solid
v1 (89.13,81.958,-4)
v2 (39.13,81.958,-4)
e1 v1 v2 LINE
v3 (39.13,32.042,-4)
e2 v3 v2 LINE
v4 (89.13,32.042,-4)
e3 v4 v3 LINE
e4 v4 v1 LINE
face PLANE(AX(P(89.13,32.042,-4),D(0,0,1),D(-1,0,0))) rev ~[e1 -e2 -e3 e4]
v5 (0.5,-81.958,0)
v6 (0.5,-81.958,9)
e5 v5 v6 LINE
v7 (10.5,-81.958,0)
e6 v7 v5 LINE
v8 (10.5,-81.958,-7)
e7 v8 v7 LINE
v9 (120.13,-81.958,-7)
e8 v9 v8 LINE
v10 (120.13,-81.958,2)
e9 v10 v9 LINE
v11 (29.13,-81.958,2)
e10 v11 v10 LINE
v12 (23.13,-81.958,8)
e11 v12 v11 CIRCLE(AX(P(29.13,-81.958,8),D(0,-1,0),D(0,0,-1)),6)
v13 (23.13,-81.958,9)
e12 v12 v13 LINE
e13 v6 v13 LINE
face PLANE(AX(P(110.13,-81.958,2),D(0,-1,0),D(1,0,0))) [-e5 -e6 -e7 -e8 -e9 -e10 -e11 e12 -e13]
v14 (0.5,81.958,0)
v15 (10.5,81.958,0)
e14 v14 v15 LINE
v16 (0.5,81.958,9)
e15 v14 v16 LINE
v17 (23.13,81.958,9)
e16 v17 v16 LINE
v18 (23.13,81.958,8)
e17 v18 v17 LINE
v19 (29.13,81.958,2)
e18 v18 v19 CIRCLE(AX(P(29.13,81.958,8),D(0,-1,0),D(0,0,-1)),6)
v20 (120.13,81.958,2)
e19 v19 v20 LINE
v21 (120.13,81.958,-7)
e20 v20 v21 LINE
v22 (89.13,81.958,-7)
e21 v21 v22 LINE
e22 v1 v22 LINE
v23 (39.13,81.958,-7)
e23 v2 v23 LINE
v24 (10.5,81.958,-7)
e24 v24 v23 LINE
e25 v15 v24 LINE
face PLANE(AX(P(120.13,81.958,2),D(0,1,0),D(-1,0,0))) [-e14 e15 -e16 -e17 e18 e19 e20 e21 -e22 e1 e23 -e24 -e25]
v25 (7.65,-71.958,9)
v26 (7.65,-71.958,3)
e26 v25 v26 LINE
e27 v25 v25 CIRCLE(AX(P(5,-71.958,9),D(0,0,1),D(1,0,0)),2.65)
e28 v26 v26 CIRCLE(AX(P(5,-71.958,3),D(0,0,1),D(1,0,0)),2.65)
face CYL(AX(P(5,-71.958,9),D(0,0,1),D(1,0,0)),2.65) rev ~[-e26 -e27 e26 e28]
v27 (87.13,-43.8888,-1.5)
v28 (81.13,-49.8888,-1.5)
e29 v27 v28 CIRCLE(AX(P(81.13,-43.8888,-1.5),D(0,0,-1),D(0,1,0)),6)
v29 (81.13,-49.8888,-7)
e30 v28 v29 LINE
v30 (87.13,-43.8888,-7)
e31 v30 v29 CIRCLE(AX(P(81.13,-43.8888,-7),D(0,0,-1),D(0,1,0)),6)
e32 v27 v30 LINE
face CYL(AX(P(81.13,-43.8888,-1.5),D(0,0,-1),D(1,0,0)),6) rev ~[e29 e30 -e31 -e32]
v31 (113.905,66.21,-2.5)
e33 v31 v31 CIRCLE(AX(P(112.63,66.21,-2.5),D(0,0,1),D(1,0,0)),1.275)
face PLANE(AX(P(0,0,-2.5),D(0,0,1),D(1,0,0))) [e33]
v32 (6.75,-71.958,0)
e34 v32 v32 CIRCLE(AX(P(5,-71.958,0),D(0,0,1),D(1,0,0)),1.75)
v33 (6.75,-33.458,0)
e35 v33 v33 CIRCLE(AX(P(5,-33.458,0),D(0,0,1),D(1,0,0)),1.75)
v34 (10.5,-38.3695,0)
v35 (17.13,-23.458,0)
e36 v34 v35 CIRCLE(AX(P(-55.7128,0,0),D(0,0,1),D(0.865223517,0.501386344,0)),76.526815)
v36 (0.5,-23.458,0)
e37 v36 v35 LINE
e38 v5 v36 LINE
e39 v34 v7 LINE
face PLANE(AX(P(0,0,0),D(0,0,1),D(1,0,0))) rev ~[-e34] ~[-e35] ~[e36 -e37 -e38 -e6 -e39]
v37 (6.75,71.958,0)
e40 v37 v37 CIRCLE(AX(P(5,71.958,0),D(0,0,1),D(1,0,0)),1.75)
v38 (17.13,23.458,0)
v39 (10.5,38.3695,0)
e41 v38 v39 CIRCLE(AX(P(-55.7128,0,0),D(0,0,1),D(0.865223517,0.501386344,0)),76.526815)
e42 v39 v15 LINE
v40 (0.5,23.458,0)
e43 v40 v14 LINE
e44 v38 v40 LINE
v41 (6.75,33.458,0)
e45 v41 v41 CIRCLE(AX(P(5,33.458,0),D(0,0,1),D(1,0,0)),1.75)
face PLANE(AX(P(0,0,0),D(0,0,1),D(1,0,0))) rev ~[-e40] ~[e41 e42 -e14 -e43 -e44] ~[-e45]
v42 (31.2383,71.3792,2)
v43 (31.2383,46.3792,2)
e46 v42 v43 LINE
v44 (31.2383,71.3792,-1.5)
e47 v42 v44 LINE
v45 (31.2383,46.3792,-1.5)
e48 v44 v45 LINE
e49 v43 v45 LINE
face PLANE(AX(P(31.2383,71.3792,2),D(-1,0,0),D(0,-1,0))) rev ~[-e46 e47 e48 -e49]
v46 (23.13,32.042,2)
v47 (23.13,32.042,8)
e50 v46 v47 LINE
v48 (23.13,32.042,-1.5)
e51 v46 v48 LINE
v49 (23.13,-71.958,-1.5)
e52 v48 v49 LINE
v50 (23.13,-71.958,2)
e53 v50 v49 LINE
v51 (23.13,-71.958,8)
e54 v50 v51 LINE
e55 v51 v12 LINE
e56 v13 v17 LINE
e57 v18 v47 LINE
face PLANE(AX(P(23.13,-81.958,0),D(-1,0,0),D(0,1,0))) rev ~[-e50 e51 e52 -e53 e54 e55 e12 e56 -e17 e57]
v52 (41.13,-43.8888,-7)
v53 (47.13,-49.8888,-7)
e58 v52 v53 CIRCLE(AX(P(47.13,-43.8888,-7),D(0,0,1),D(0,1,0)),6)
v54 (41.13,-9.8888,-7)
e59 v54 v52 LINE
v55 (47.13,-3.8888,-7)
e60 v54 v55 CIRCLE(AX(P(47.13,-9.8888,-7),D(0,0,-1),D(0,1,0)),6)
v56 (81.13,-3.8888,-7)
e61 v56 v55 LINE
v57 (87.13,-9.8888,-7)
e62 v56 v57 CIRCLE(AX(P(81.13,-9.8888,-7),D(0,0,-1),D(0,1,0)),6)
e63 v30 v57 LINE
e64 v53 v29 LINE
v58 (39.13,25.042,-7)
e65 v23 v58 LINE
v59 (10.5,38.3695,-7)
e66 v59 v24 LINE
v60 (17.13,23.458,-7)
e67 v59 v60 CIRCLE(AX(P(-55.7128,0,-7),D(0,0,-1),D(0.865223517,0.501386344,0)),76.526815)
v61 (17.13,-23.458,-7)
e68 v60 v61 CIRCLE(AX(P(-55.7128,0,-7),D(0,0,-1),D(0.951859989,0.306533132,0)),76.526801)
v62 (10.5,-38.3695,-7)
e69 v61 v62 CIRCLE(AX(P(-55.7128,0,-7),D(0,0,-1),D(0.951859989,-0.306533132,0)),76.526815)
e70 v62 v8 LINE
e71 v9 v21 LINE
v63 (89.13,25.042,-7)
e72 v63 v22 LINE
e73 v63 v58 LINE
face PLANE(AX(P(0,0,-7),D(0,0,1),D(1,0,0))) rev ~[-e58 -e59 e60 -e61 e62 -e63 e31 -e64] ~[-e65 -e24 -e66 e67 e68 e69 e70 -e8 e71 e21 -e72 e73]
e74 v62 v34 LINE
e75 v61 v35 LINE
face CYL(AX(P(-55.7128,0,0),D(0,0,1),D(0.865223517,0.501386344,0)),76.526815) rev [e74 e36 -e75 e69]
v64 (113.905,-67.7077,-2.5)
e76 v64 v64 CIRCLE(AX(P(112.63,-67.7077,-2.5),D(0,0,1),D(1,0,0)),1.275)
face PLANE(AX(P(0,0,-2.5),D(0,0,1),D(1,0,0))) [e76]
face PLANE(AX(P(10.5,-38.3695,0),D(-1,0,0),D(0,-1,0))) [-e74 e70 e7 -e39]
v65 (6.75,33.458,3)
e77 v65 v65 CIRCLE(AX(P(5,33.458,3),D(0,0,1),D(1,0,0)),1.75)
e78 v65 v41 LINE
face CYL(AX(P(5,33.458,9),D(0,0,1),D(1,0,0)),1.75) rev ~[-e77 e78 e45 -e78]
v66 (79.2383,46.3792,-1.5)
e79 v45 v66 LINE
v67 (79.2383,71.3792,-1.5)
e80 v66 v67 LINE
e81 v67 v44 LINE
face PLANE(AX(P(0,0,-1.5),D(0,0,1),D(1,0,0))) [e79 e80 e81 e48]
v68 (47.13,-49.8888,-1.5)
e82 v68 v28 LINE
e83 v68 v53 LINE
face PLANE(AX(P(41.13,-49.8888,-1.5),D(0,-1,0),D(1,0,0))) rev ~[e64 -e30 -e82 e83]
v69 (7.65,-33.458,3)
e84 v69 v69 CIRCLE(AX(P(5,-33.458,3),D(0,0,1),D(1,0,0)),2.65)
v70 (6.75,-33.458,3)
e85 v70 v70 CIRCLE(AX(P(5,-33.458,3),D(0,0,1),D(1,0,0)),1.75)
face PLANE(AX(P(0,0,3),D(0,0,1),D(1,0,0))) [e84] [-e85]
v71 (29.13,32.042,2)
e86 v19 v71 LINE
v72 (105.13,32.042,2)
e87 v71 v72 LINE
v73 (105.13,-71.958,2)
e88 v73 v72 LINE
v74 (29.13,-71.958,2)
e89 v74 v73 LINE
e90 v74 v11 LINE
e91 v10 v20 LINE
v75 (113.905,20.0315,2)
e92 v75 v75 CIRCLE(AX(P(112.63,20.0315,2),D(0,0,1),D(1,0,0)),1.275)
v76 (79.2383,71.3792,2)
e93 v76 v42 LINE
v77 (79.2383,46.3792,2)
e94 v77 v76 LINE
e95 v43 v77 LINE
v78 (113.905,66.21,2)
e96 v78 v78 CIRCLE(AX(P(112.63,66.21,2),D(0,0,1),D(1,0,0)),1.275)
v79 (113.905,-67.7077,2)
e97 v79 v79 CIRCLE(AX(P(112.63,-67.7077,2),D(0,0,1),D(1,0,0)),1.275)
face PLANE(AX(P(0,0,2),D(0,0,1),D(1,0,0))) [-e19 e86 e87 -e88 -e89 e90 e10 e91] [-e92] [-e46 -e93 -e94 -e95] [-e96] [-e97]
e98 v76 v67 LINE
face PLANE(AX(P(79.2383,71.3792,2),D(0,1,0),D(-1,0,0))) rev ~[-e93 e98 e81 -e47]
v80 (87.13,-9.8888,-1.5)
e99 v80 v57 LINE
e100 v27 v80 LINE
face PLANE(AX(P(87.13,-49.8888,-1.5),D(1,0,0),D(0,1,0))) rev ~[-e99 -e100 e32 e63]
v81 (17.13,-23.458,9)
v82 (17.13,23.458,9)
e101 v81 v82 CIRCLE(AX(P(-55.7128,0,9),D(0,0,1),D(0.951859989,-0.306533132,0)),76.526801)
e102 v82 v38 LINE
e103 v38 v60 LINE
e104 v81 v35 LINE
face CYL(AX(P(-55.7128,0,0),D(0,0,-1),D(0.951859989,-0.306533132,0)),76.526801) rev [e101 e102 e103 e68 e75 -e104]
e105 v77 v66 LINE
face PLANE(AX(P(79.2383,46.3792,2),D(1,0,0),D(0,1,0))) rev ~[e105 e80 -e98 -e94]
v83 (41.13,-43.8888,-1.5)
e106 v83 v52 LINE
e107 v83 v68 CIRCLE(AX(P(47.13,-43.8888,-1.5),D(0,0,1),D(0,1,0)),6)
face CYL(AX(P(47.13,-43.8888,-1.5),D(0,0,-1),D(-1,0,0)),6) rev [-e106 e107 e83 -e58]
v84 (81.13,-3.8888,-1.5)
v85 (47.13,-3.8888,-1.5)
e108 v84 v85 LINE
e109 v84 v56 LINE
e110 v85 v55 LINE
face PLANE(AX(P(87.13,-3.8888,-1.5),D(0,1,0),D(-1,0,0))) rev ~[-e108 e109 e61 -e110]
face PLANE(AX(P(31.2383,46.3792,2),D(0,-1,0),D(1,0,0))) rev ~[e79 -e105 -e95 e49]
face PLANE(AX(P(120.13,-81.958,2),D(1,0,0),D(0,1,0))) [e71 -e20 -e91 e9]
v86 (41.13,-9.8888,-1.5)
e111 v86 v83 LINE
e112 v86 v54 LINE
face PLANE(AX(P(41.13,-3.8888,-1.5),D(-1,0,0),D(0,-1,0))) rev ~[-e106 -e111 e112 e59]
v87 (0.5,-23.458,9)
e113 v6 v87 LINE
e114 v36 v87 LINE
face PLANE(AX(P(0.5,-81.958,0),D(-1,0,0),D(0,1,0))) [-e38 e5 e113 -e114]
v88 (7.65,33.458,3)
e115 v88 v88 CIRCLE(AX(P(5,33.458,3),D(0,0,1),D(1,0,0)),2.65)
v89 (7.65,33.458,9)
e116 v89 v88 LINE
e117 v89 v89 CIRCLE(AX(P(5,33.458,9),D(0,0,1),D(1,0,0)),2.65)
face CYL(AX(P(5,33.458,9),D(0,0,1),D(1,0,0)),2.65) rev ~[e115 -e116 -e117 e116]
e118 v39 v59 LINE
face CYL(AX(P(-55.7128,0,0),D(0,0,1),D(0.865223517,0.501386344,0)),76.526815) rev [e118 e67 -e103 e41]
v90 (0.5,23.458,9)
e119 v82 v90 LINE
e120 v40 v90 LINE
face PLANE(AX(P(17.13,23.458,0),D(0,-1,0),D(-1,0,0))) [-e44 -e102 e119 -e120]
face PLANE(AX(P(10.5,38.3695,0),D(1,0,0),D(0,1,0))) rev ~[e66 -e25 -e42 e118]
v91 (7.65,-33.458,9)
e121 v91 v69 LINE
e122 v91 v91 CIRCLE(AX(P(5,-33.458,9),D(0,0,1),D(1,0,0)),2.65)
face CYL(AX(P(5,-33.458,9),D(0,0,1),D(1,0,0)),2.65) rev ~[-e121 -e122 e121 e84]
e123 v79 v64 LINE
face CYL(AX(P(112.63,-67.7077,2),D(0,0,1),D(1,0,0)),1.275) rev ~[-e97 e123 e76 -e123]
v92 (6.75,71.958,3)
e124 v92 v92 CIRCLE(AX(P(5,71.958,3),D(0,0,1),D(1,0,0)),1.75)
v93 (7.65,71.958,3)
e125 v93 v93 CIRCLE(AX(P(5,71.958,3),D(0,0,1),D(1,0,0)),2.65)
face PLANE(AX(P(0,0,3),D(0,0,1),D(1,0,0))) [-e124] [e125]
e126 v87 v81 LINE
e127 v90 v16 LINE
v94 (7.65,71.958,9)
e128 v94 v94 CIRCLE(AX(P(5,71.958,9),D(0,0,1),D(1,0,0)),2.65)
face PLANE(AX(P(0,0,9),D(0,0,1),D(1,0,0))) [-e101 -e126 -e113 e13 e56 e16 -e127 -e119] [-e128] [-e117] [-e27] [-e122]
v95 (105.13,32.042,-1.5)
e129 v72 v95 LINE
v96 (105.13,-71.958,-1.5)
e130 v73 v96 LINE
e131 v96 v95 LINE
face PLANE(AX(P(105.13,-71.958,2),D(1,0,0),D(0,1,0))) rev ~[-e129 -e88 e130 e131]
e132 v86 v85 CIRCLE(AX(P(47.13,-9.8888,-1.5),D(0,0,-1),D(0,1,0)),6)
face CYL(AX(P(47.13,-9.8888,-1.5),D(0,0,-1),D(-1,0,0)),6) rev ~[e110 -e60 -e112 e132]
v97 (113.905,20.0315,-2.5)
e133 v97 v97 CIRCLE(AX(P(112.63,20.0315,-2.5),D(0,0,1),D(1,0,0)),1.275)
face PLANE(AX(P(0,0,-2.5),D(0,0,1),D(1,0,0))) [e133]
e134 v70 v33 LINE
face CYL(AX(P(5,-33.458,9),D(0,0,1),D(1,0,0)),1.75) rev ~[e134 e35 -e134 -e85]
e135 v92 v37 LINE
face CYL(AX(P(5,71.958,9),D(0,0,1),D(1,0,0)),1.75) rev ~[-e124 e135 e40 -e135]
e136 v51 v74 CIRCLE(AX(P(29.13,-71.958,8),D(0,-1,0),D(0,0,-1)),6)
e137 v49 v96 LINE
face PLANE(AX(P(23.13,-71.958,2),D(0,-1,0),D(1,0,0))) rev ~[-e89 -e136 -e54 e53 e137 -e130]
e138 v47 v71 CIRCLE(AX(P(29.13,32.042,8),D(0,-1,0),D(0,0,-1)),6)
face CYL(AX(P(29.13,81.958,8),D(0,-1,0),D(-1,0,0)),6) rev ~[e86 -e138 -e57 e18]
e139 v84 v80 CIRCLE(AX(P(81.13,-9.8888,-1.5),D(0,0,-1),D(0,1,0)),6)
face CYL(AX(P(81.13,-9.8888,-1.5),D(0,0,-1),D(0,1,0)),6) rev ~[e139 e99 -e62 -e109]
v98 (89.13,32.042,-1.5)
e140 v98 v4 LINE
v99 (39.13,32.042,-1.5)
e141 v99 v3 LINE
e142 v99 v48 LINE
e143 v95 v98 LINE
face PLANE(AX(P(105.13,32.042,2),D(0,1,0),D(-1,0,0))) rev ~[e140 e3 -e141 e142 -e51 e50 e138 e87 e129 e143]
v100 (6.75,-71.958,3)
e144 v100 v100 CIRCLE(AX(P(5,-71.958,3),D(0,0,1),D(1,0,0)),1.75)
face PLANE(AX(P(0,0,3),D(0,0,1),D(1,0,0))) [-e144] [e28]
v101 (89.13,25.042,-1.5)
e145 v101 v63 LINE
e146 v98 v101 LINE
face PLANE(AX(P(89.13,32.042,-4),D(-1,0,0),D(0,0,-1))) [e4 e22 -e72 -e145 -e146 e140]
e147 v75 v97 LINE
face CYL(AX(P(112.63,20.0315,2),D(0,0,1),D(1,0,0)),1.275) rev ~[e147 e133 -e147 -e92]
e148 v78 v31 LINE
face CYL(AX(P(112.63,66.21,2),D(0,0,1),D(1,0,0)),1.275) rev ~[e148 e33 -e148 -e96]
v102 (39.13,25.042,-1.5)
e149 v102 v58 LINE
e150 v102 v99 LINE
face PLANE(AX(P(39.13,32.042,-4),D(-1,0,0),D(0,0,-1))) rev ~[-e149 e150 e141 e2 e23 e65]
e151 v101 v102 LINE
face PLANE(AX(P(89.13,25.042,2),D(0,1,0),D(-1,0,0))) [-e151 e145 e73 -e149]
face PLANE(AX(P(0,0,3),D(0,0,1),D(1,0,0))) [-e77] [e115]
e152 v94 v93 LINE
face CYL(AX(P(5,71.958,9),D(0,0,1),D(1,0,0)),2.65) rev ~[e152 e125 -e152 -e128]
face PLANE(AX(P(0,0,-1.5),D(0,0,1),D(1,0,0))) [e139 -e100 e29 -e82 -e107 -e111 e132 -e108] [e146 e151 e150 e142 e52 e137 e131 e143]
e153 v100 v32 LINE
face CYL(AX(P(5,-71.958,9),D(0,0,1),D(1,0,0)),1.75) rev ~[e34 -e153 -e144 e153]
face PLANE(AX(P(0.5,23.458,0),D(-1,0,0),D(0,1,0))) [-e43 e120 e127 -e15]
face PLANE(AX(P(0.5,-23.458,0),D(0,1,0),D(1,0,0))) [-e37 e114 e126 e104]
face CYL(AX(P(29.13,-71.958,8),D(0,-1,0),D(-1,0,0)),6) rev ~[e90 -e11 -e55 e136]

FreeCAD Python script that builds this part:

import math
import FreeCAD as App
import Part
import Sketcher

V = App.Vector
Q = App.Units.Quantity


def edges_at(feature, points):
    """Names of the edges that pass closest to the given points."""
    edges = feature.Shape.Edges
    near = lambda p: min(range(len(edges)), key=lambda i: edges[i].distToShape(Part.Vertex(*p))[0])
    return sorted({f"Edge{near(p) + 1}" for p in points})

doc = App.newDocument("Part")
body = doc.addObject("PartDesign::Body", "Body")

# Sketch on XY plane
sketch1 = body.newObject("Sketcher::SketchObject", "Sketch")
sketch1.AttachmentSupport = (doc.getObject("XY_Plane"), [""])
sketch1.MapMode = "FlatFace"
sketch1.addGeometry(Part.LineSegment(V(17.13, -23.458, 0), V(0.5, -23.458, 0)), False)
sketch1.addGeometry(Part.LineSegment(V(0.5, -23.458, 0), V(0.5, -81.958, 0)), False)
sketch1.addGeometry(Part.LineSegment(V(0.5, -81.958, 0), V(23.13, -81.958, 0)), False)
sketch1.addGeometry(Part.LineSegment(V(23.13, -81.958, 0), V(23.13, 81.958, 0)), False)
sketch1.addGeometry(Part.LineSegment(V(23.13, 81.958, 0), V(0.5, 81.958, 0)), False)
sketch1.addGeometry(Part.LineSegment(V(0.5, 81.958, 0), V(0.5, 23.458, 0)), False)
sketch1.addGeometry(Part.LineSegment(V(0.5, 23.458, 0), V(17.13, 23.458, 0)), False)
sketch1.addGeometry(Part.ArcOfCircle(Part.Circle(V(-55.7128, 0, 0), V(0, 0, 1), 76.526801), math.radians(-17.850425), math.radians(17.850425)), False)
sketch1.addConstraint(Sketcher.Constraint("Coincident", 0, 2, 1, 1))
sketch1.addConstraint(Sketcher.Constraint("Coincident", 1, 2, 2, 1))
sketch1.addConstraint(Sketcher.Constraint("Coincident", 2, 2, 3, 1))
sketch1.addConstraint(Sketcher.Constraint("Coincident", 3, 2, 4, 1))
sketch1.addConstraint(Sketcher.Constraint("Coincident", 4, 2, 5, 1))
sketch1.addConstraint(Sketcher.Constraint("Coincident", 5, 2, 6, 1))
sketch1.addConstraint(Sketcher.Constraint("Coincident", 6, 2, 7, 2))
sketch1.addConstraint(Sketcher.Constraint("Coincident", 7, 1, 0, 1))
sketch1.addConstraint(Sketcher.Constraint("Horizontal", 0))
sketch1.addConstraint(Sketcher.Constraint("Vertical", 1))
sketch1.addConstraint(Sketcher.Constraint("Horizontal", 2))
sketch1.addConstraint(Sketcher.Constraint("Vertical", 3))
sketch1.addConstraint(Sketcher.Constraint("Horizontal", 4))
sketch1.addConstraint(Sketcher.Constraint("Vertical", 5))
sketch1.addConstraint(Sketcher.Constraint("Horizontal", 6))
sketch1.addConstraint(Sketcher.Constraint("Symmetric", 1, 2, 4, 2, -1))
sketch1.addConstraint(Sketcher.Constraint("Symmetric", 6, 2, 7, 1, -1))
sketch1.addConstraint(Sketcher.Constraint("DistanceX", 6, 2, 3, 2, Q("6 mm")))
sketch1.addConstraint(Sketcher.Constraint("DistanceX", 0, 2, 0, 1, Q("16.63 mm")))
sketch1.addConstraint(Sketcher.Constraint("DistanceX", -1, 1, 0, 2, Q("0.5 mm")))
sketch1.addConstraint(Sketcher.Constraint("DistanceY", 1, 2, 1, 1, Q("58.5 mm")))
sketch1.addConstraint(Sketcher.Constraint("Radius", 7, Q("76.5268 mm")))
sketch1.addConstraint(Sketcher.Constraint("DistanceY", 3, 1, 3, 2, Q("163.916 mm")))
pad1 = body.newObject("PartDesign::Pad", "Pad")
pad1.Profile = sketch1
pad1.Length = 9

# Sketch on XY plane
sketch2 = body.newObject("Sketcher::SketchObject", "Sketch001")
sketch2.AttachmentSupport = (doc.getObject("XY_Plane"), [""])
sketch2.MapMode = "FlatFace"
sketch2.addGeometry(Part.LineSegment(V(10.5, 38.3695, 0), V(10.5, 81.958, 0)), False)
sketch2.addGeometry(Part.LineSegment(V(10.5, 81.958, 0), V(110.13, 81.958, 0)), False)
sketch2.addGeometry(Part.LineSegment(V(110.13, 81.958, 0), V(110.13, -81.958, 0)), False)
sketch2.addGeometry(Part.LineSegment(V(110.13, -81.958, 0), V(10.5, -81.958, 0)), False)
sketch2.addGeometry(Part.LineSegment(V(10.5, -81.958, 0), V(10.5, -38.3695, 0)), False)
sketch2.addGeometry(Part.ArcOfCircle(Part.Circle(V(-55.7128, 0, 0), V(0, 0, 1), 76.526815), math.radians(-30.091762), math.radians(30.091762)), False)
sketch2.addConstraint(Sketcher.Constraint("Coincident", 0, 2, 1, 1))
sketch2.addConstraint(Sketcher.Constraint("Coincident", 1, 2, 2, 1))
sketch2.addConstraint(Sketcher.Constraint("Coincident", 2, 2, 3, 1))
sketch2.addConstraint(Sketcher.Constraint("Coincident", 3, 2, 4, 1))
sketch2.addConstraint(Sketcher.Constraint("Coincident", 4, 2, 5, 1))
sketch2.addConstraint(Sketcher.Constraint("Coincident", 5, 2, 0, 1))
sketch2.addConstraint(Sketcher.Constraint("Vertical", 0))
sketch2.addConstraint(Sketcher.Constraint("Horizontal", 1))
sketch2.addConstraint(Sketcher.Constraint("Vertical", 2))
sketch2.addConstraint(Sketcher.Constraint("Horizontal", 3))
sketch2.addConstraint(Sketcher.Constraint("Vertical", 4))
sketch2.addConstraint(Sketcher.Constraint("Symmetric", 0, 2, 3, 2, -1))
sketch2.addConstraint(Sketcher.Constraint("PointOnObject", 5, 3, -1))
sketch2.addConstraint(Sketcher.Constraint("DistanceX", -1, 1, 0, 2, Q("10.5 mm")))
sketch2.addConstraint(Sketcher.Constraint("DistanceX", 1, 1, 1, 2, Q("99.63 mm")))
sketch2.addConstraint(Sketcher.Constraint("Radius", 5, Q("76.5268 mm")))
sketch2.addConstraint(Sketcher.Constraint("DistanceY", 2, 2, 2, 1, Q("163.916 mm")))
sketch2.addConstraint(Sketcher.Constraint("DistanceY", 0, 1, 0, 2, Q("43.5885 mm")))
pad2 = body.newObject("PartDesign::Pad", "Pad001")
pad2.Profile = sketch2
pad2.Type = "TwoLengths"
pad2.Length = 7
pad2.Length2 = 2
pad2.Reversed = True

# Sketch on XY plane
sketch3 = body.newObject("Sketcher::SketchObject", "Sketch002")
sketch3.AttachmentSupport = (doc.getObject("XY_Plane"), [""])
sketch3.MapMode = "FlatFace"
sketch3.AttachmentOffset = App.Placement(V(0, 0, 9), App.Rotation())
sketch3.addGeometry(Part.Circle(V(5, -71.958, 0), V(0, 0, 1), 1.75), False)
sketch3.addGeometry(Part.Circle(V(5, -33.458, 0), V(0, 0, 1), 1.75), False)
sketch3.addGeometry(Part.Circle(V(5, 71.958, 0), V(0, 0, 1), 1.75), False)
sketch3.addGeometry(Part.Circle(V(5, 33.458, 0), V(0, 0, 1), 1.75), False)
sketch3.addConstraint(Sketcher.Constraint("Equal", 0, 1))
sketch3.addConstraint(Sketcher.Constraint("Equal", 1, 2))
sketch3.addConstraint(Sketcher.Constraint("Equal", 2, 3))
sketch3.addConstraint(Sketcher.Constraint("Symmetric", 0, 3, 2, 3, -1))
sketch3.addConstraint(Sketcher.Constraint("Symmetric", 1, 3, 3, 3, -1))
sketch3.addConstraint(Sketcher.Constraint("Vertical", 0, 3, 1, 3))
sketch3.addConstraint(Sketcher.Constraint("Diameter", 0, Q("3.5 mm")))
sketch3.addConstraint(Sketcher.Constraint("DistanceX", -1, 1, 0, 3, Q("5 mm")))
sketch3.addConstraint(Sketcher.Constraint("DistanceY", 0, 3, 1, 3, Q("38.5 mm")))
sketch3.addConstraint(Sketcher.Constraint("DistanceY", 0, 3, -1, 1, Q("71.958 mm")))
pocket1 = body.newObject("PartDesign::Pocket", "Pocket")
pocket1.Profile = sketch3
pocket1.Length = 9

# Sketch on XY plane
sketch4 = body.newObject("Sketcher::SketchObject", "Sketch003")
sketch4.AttachmentSupport = (doc.getObject("XY_Plane"), [""])
sketch4.MapMode = "FlatFace"
sketch4.AttachmentOffset = App.Placement(V(0, 0, 9), App.Rotation())
sketch4.addGeometry(Part.Circle(V(5, -71.958, 0), V(0, 0, 1), 2.65), False)
sketch4.addGeometry(Part.Circle(V(5, -33.458, 0), V(0, 0, 1), 2.65), False)
sketch4.addGeometry(Part.Circle(V(5, 33.458, 0), V(0, 0, 1), 2.65), False)
sketch4.addGeometry(Part.Circle(V(5, 71.958, 0), V(0, 0, 1), 2.65), False)
sketch4.addConstraint(Sketcher.Constraint("Equal", 0, 1))
sketch4.addConstraint(Sketcher.Constraint("Equal", 1, 2))
sketch4.addConstraint(Sketcher.Constraint("Equal", 2, 3))
sketch4.addConstraint(Sketcher.Constraint("Symmetric", 1, 3, 2, 3, -1))
sketch4.addConstraint(Sketcher.Constraint("Symmetric", 0, 3, 3, 3, -1))
sketch4.addConstraint(Sketcher.Constraint("Vertical", 0, 3, 1, 3))
sketch4.addConstraint(Sketcher.Constraint("Diameter", 0, Q("5.3 mm")))
sketch4.addConstraint(Sketcher.Constraint("DistanceX", -1, 1, 0, 3, Q("5 mm")))
sketch4.addConstraint(Sketcher.Constraint("DistanceY", 0, 3, 1, 3, Q("38.5 mm")))
sketch4.addConstraint(Sketcher.Constraint("DistanceY", 0, 3, -1, 1, Q("71.958 mm")))
pocket2 = body.newObject("PartDesign::Pocket", "Pocket001")
pocket2.Profile = sketch4
pocket2.Length = 6

# Sketch on XY plane
sketch5 = body.newObject("Sketcher::SketchObject", "Sketch004")
sketch5.AttachmentSupport = (doc.getObject("XY_Plane"), [""])
sketch5.MapMode = "FlatFace"
sketch5.AttachmentOffset = App.Placement(V(0, 0, 2), App.Rotation())
sketch5.addGeometry(Part.LineSegment(V(23.13, 32.042, 0), V(23.13, -71.958, 0)), False)
sketch5.addGeometry(Part.LineSegment(V(23.13, -71.958, 0), V(105.13, -71.958, 0)), False)
sketch5.addGeometry(Part.LineSegment(V(105.13, -71.958, 0), V(105.13, 32.042, 0)), False)
sketch5.addGeometry(Part.LineSegment(V(105.13, 32.042, 0), V(23.13, 32.042, 0)), False)
sketch5.addGeometry(Part.LineSegment(V(31.2383, 71.3792, 0), V(31.2383, 46.3792, 0)), False)
sketch5.addGeometry(Part.LineSegment(V(31.2383, 46.3792, 0), V(79.2383, 46.3792, 0)), False)
sketch5.addGeometry(Part.LineSegment(V(79.2383, 46.3792, 0), V(79.2383, 71.3792, 0)), False)
sketch5.addGeometry(Part.LineSegment(V(79.2383, 71.3792, 0), V(31.2383, 71.3792, 0)), False)
sketch5.addConstraint(Sketcher.Constraint("Coincident", 0, 2, 1, 1))
sketch5.addConstraint(Sketcher.Constraint("Coincident", 1, 2, 2, 1))
sketch5.addConstraint(Sketcher.Constraint("Coincident", 2, 2, 3, 1))
sketch5.addConstraint(Sketcher.Constraint("Coincident", 3, 2, 0, 1))
sketch5.addConstraint(Sketcher.Constraint("Coincident", 4, 2, 5, 1))
sketch5.addConstraint(Sketcher.Constraint("Coincident", 5, 2, 6, 1))
sketch5.addConstraint(Sketcher.Constraint("Coincident", 6, 2, 7, 1))
sketch5.addConstraint(Sketcher.Constraint("Coincident", 7, 2, 4, 1))
sketch5.addConstraint(Sketcher.Constraint("Vertical", 0))
sketch5.addConstraint(Sketcher.Constraint("Horizontal", 1))
sketch5.addConstraint(Sketcher.Constraint("Vertical", 2))
sketch5.addConstraint(Sketcher.Constraint("Horizontal", 3))
sketch5.addConstraint(Sketcher.Constraint("Vertical", 4))
sketch5.addConstraint(Sketcher.Constraint("Horizontal", 5))
sketch5.addConstraint(Sketcher.Constraint("Vertical", 6))
sketch5.addConstraint(Sketcher.Constraint("Horizontal", 7))
sketch5.addConstraint(Sketcher.Constraint("DistanceX", 1, 1, 1, 2, Q("82 mm")))
sketch5.addConstraint(Sketcher.Constraint("DistanceX", 5, 1, 5, 2, Q("48 mm")))
sketch5.addConstraint(Sketcher.Constraint("DistanceY", 0, 2, 0, 1, Q("104 mm")))
sketch5.addConstraint(Sketcher.Constraint("DistanceY", 4, 2, 4, 1, Q("25 mm")))
sketch5.addConstraint(Sketcher.Constraint("DistanceX", -1, 1, 0, 2, Q("23.13 mm")))
sketch5.addConstraint(Sketcher.Constraint("DistanceY", 0, 2, -1, 1, Q("71.958 mm")))
sketch5.addConstraint(Sketcher.Constraint("DistanceX", -1, 1, 4, 2, Q("31.2383 mm")))
sketch5.addConstraint(Sketcher.Constraint("DistanceY", -1, 1, 4, 2, Q("46.3792 mm")))
pocket3 = body.newObject("PartDesign::Pocket", "Pocket002")
pocket3.Profile = sketch5
pocket3.Length = 3.5

# Sketch on XY plane
sketch6 = body.newObject("Sketcher::SketchObject", "Sketch005")
sketch6.AttachmentSupport = (doc.getObject("XY_Plane"), [""])
sketch6.MapMode = "FlatFace"
sketch6.AttachmentOffset = App.Placement(V(0, 0, 2), App.Rotation())
sketch6.addGeometry(Part.LineSegment(V(89.13, 32.042, 0), V(39.13, 32.042, 0)), False)
sketch6.addGeometry(Part.LineSegment(V(39.13, 32.042, 0), V(39.13, 25.042, 0)), False)
sketch6.addGeometry(Part.LineSegment(V(39.13, 25.042, 0), V(89.13, 25.042, 0)), False)
sketch6.addGeometry(Part.LineSegment(V(89.13, 25.042, 0), V(89.13, 32.042, 0)), False)
sketch6.addConstraint(Sketcher.Constraint("Coincident", 0, 2, 1, 1))
sketch6.addConstraint(Sketcher.Constraint("Coincident", 1, 2, 2, 1))
sketch6.addConstraint(Sketcher.Constraint("Coincident", 2, 2, 3, 1))
sketch6.addConstraint(Sketcher.Constraint("Coincident", 3, 2, 0, 1))
sketch6.addConstraint(Sketcher.Constraint("Horizontal", 0))
sketch6.addConstraint(Sketcher.Constraint("Vertical", 1))
sketch6.addConstraint(Sketcher.Constraint("Horizontal", 2))
sketch6.addConstraint(Sketcher.Constraint("Vertical", 3))
sketch6.addConstraint(Sketcher.Constraint("DistanceY", 1, 2, 1, 1, Q("7 mm")))
sketch6.addConstraint(Sketcher.Constraint("DistanceX", 0, 2, 0, 1, Q("50 mm")))
sketch6.addConstraint(Sketcher.Constraint("DistanceX", -1, 1, 0, 2, Q("39.13 mm")))
sketch6.addConstraint(Sketcher.Constraint("DistanceY", -1, 1, 0, 2, Q("32.042 mm")))
pocket4 = body.newObject("PartDesign::Pocket", "Pocket003")
pocket4.Profile = sketch6
pocket4.Length = 9

# Sketch on XZ plane
sketch7 = body.newObject("Sketcher::SketchObject", "Sketch006")
sketch7.AttachmentSupport = (doc.getObject("XZ_Plane"), [""])
sketch7.MapMode = "FlatFace"
sketch7.AttachmentOffset = App.Placement(V(0, 0, -32.042), App.Rotation())
sketch7.addGeometry(Part.LineSegment(V(39.13, -7, 0), V(89.13, -7, 0)), False)
sketch7.addGeometry(Part.LineSegment(V(89.13, -7, 0), V(89.13, -4, 0)), False)
sketch7.addGeometry(Part.LineSegment(V(89.13, -4, 0), V(39.13, -4, 0)), False)
sketch7.addGeometry(Part.LineSegment(V(39.13, -4, 0), V(39.13, -7, 0)), False)
sketch7.addConstraint(Sketcher.Constraint("Coincident", 0, 2, 1, 1))
sketch7.addConstraint(Sketcher.Constraint("Coincident", 1, 2, 2, 1))
sketch7.addConstraint(Sketcher.Constraint("Coincident", 2, 2, 3, 1))
sketch7.addConstraint(Sketcher.Constraint("Coincident", 3, 2, 0, 1))
sketch7.addConstraint(Sketcher.Constraint("Horizontal", 0))
sketch7.addConstraint(Sketcher.Constraint("Vertical", 1))
sketch7.addConstraint(Sketcher.Constraint("Horizontal", 2))
sketch7.addConstraint(Sketcher.Constraint("Vertical", 3))
sketch7.addConstraint(Sketcher.Constraint("DistanceY", 1, 1, 1, 2, Q("3 mm")))
sketch7.addConstraint(Sketcher.Constraint("DistanceX", 0, 1, 0, 2, Q("50 mm")))
sketch7.addConstraint(Sketcher.Constraint("DistanceY", 0, 2, -1, 1, Q("7 mm")))
sketch7.addConstraint(Sketcher.Constraint("DistanceX", -1, 1, 0, 2, Q("89.13 mm")))
pocket5 = body.newObject("PartDesign::Pocket", "Pocket004")
pocket5.Profile = sketch7
pocket5.Length = 49.916

# Sketch on XY plane
sketch8 = body.newObject("Sketcher::SketchObject", "Sketch007")
sketch8.AttachmentSupport = (doc.getObject("XY_Plane"), [""])
sketch8.MapMode = "FlatFace"
sketch8.AttachmentOffset = App.Placement(V(0, 0, -1.5), App.Rotation())
sketch8.addGeometry(Part.LineSegment(V(41.13, -3.8888, 0), V(41.13, -49.8888, 0)), False)
sketch8.addGeometry(Part.LineSegment(V(41.13, -49.8888, 0), V(87.13, -49.8888, 0)), False)
sketch8.addGeometry(Part.LineSegment(V(87.13, -49.8888, 0), V(87.13, -3.8888, 0)), False)
sketch8.addGeometry(Part.LineSegment(V(87.13, -3.8888, 0), V(41.13, -3.8888, 0)), False)
sketch8.addConstraint(Sketcher.Constraint("Coincident", 0, 2, 1, 1))
sketch8.addConstraint(Sketcher.Constraint("Coincident", 1, 2, 2, 1))
sketch8.addConstraint(Sketcher.Constraint("Coincident", 2, 2, 3, 1))
sketch8.addConstraint(Sketcher.Constraint("Coincident", 3, 2, 0, 1))
sketch8.addConstraint(Sketcher.Constraint("Vertical", 0))
sketch8.addConstraint(Sketcher.Constraint("Horizontal", 1))
sketch8.addConstraint(Sketcher.Constraint("Vertical", 2))
sketch8.addConstraint(Sketcher.Constraint("Horizontal", 3))
sketch8.addConstraint(Sketcher.Constraint("Equal", 3, 0))
sketch8.addConstraint(Sketcher.Constraint("DistanceX", 1, 1, 1, 2, Q("46 mm")))
sketch8.addConstraint(Sketcher.Constraint("DistanceX", -1, 1, 0, 2, Q("41.13 mm")))
sketch8.addConstraint(Sketcher.Constraint("DistanceY", 0, 2, -1, 1, Q("49.8888 mm")))
pocket6 = body.newObject("PartDesign::Pocket", "Pocket005")
pocket6.Profile = sketch8
pocket6.Length = 5.5

# Sketch on XY plane
sketch9 = body.newObject("Sketcher::SketchObject", "Sketch008")
sketch9.AttachmentSupport = (doc.getObject("XY_Plane"), [""])
sketch9.MapMode = "FlatFace"
sketch9.AttachmentOffset = App.Placement(V(0, 0, 2), App.Rotation())
sketch9.addGeometry(Part.LineSegment(V(120.13, 81.958, 0), V(110.13, 81.958, 0)), False)
sketch9.addGeometry(Part.LineSegment(V(110.13, 81.958, 0), V(110.13, -81.958, 0)), False)
sketch9.addGeometry(Part.LineSegment(V(110.13, -81.958, 0), V(120.13, -81.958, 0)), False)
sketch9.addGeometry(Part.LineSegment(V(120.13, -81.958, 0), V(120.13, 81.958, 0)), False)
sketch9.addConstraint(Sketcher.Constraint("Coincident", 0, 2, 1, 1))
sketch9.addConstraint(Sketcher.Constraint("Coincident", 1, 2, 2, 1))
sketch9.addConstraint(Sketcher.Constraint("Coincident", 2, 2, 3, 1))
sketch9.addConstraint(Sketcher.Constraint("Coincident", 3, 2, 0, 1))
sketch9.addConstraint(Sketcher.Constraint("Horizontal", 0))
sketch9.addConstraint(Sketcher.Constraint("Vertical", 1))
sketch9.addConstraint(Sketcher.Constraint("Horizontal", 2))
sketch9.addConstraint(Sketcher.Constraint("Vertical", 3))
sketch9.addConstraint(Sketcher.Constraint("DistanceX", 0, 2, 0, 1, Q("10 mm")))
sketch9.addConstraint(Sketcher.Constraint("DistanceY", 1, 2, 1, 1, Q("163.916 mm")))
sketch9.addConstraint(Sketcher.Constraint("DistanceX", -1, 1, 0, 2, Q("110.13 mm")))
sketch9.addConstraint(Sketcher.Constraint("DistanceY", -1, 1, 0, 2, Q("81.958 mm")))
pad3 = body.newObject("PartDesign::Pad", "Pad002")
pad3.Profile = sketch9
pad3.Length = 9
pad3.Reversed = True

# Sketch on XY plane
sketch10 = body.newObject("Sketcher::SketchObject", "Sketch009")
sketch10.AttachmentSupport = (doc.getObject("XY_Plane"), [""])
sketch10.MapMode = "FlatFace"
sketch10.AttachmentOffset = App.Placement(V(0, 0, 2), App.Rotation())
sketch10.addGeometry(Part.Circle(V(112.63, -67.7077, 0), V(0, 0, 1), 1.275), False)
sketch10.addGeometry(Part.Circle(V(112.63, 66.21, 0), V(0, 0, 1), 1.275), False)
sketch10.addGeometry(Part.Circle(V(112.63, 20.0315, 0), V(0, 0, 1), 1.275), False)
sketch10.addConstraint(Sketcher.Constraint("Equal", 0, 1))
sketch10.addConstraint(Sketcher.Constraint("Equal", 1, 2))
sketch10.addConstraint(Sketcher.Constraint("Vertical", 0, 3, 1, 3))
sketch10.addConstraint(Sketcher.Constraint("Vertical", 1, 3, 2, 3))
sketch10.addConstraint(Sketcher.Constraint("Diameter", 0, Q("2.55 mm")))
sketch10.addConstraint(Sketcher.Constraint("DistanceY", 2, 3, 1, 3, Q("46.1785 mm")))
sketch10.addConstraint(Sketcher.Constraint("DistanceX", -1, 1, 0, 3, Q("112.63 mm")))
sketch10.addConstraint(Sketcher.Constraint("DistanceY", -1, 1, 1, 3, Q("66.21 mm")))
sketch10.addConstraint(Sketcher.Constraint("DistanceY", 0, 3, -1, 1, Q("67.7077 mm")))
pocket7 = body.newObject("PartDesign::Pocket", "Pocket006")
pocket7.Profile = sketch10
pocket7.Length = 4.5
doc.recompute()

fillet = body.newObject("PartDesign::Fillet", "Fillet")
fillet.Base = (pocket7, edges_at(pocket7, [
    (41.13, -49.889, -4.25),
    (41.13, -3.889, -4.25),
    (87.13, -3.889, -4.25),
    (87.13, -49.889, -4.25),
    (23.13, -76.958, 2),
    (23.13, 57, 2),
]))
fillet.Radius = 6

doc.recompute()
